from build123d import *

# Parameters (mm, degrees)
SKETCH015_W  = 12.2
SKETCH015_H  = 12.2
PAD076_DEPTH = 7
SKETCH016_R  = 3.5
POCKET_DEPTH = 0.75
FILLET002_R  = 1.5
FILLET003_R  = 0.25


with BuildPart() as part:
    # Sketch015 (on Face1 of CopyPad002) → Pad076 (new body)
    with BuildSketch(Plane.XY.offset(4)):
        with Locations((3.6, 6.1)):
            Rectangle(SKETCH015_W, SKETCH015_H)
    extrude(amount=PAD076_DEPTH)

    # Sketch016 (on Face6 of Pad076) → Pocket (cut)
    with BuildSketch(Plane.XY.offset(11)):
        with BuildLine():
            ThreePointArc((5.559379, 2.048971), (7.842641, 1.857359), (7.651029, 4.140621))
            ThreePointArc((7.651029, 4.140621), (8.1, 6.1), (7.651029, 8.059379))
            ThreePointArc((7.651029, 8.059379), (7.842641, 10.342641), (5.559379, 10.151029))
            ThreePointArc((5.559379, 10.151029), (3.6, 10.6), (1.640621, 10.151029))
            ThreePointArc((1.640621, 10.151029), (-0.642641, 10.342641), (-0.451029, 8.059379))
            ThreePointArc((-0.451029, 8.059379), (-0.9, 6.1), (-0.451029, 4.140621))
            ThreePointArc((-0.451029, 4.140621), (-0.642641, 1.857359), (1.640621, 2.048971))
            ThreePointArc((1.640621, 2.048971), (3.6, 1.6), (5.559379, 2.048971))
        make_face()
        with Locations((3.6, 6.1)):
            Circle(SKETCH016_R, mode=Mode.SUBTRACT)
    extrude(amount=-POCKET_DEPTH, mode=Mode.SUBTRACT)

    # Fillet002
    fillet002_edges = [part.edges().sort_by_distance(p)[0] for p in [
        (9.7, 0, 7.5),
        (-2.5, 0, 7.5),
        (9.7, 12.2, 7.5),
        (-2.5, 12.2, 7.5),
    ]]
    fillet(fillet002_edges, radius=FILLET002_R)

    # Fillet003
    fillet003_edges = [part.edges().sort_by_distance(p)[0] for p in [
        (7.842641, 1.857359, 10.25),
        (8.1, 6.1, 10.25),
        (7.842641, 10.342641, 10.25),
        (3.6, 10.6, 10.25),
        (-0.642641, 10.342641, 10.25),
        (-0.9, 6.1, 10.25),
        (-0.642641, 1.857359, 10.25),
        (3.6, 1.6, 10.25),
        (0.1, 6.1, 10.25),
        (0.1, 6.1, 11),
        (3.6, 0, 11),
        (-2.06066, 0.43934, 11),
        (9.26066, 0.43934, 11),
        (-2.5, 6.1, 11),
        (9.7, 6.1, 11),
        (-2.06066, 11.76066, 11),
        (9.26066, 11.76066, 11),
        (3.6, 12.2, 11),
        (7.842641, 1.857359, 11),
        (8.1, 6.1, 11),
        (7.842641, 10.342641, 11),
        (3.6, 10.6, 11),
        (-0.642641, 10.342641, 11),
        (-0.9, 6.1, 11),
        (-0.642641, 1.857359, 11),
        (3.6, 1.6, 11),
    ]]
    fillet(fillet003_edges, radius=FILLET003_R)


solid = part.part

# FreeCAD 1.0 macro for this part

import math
import FreeCAD as App
import Part
import Sketcher

V = App.Vector


def edges_at(feature, points):
    """Names of the edges that pass closest to the given points."""
    edges = feature.Shape.Edges
    near = lambda p: min(range(len(edges)), key=lambda i: edges[i].distToShape(Part.Vertex(*p))[0])
    return sorted({f"Edge{near(p) + 1}" for p in points})


def add_polygon(sketch, points):
    """Adds a closed chain of lines whose ends are joined by coincident constraints."""
    first, n = sketch.GeometryCount, len(points)
    for a, b in zip(points, points[1:] + points[:1]):
        sketch.addGeometry(Part.LineSegment(App.Vector(*a, 0), App.Vector(*b, 0)), False)
    for i in range(n):
        sketch.addConstraint(Sketcher.Constraint("Coincident", first + i, 2, first + (i + 1) % n, 1))

doc = App.newDocument("Part")
params = doc.addObject("Spreadsheet::Sheet", "Params")
for row, (alias, value) in enumerate([
    ("sketch1_width", "12.2 mm"),
    ("pad1_length", "7 mm"),
    ("sketch2_diameter", "7 mm"),
    ("sketch2_radius", "1.5 mm"),
    ("pocket1_length", "0.75 mm"),
    ("fillet_radius", "1.5 mm"),
    ("fillet2_radius", "0.25 mm"),
], start=1):
    params.set(f"A{row}", alias)
    params.set(f"B{row}", "=" + value)
    params.setAlias(f"B{row}", alias)

body = doc.addObject("PartDesign::Body", "Body")

sketch1 = doc.addObject("Sketcher::SketchObject", "Sketch")
body.addObject(sketch1)
sketch1.AttachmentSupport = (doc.XY_Plane, [""])
sketch1.MapMode = "FlatFace"
sketch1.AttachmentOffset = App.Placement(V(0, 0, 4), App.Rotation())
add_polygon(sketch1, [(-2, 12), (-2, 0), (10, 0), (10, 12)])
sketch1.addConstraint([
    Sketcher.Constraint("Vertical", 0),
    Sketcher.Constraint("Horizontal", 1),
    Sketcher.Constraint("Vertical", 2),
    Sketcher.Constraint("Horizontal", 3),
    Sketcher.Constraint("PointOnObject", 0, 2, -1),
    Sketcher.Constraint("Equal", 3, 0),
    Sketcher.Constraint("DistanceX", 1, 1, 1, 2, 12.2),
    Sketcher.Constraint("DistanceX", 0, 2, -1, 1, 2.5),
])
sketch1.setExpression("Constraints[10]", "Params.sketch1_width")
pad1 = doc.addObject("PartDesign::Pad", "Pad")
body.addObject(pad1)
pad1.Profile = sketch1
pad1.setExpression("Length", "Params.pad1_length")

sketch2 = doc.addObject("Sketcher::SketchObject", "Sketch001")
body.addObject(sketch2)
sketch2.AttachmentSupport = (doc.XY_Plane, [""])
sketch2.MapMode = "FlatFace"
sketch2.AttachmentOffset = App.Placement(V(0, 0, 11), App.Rotation())
sketch2.addGeometry([
    Part.ArcOfCircle(Part.Circle(V(6.8, 2.9, 0), V(0, 0, 1), 1.5), math.radians(-145), math.radians(55)),
    Part.ArcOfCircle(Part.Circle(V(3.6, 6.1, 0), V(0, 0, 1), 4.5), math.radians(-26), math.radians(26)),
    Part.ArcOfCircle(Part.Circle(V(6.8, 9.3, 0), V(0, 0, 1), 1.5), math.radians(-55), math.radians(145)),
    Part.ArcOfCircle(Part.Circle(V(3.6, 6.1, 0), V(0, 0, 1), 4.5), math.radians(64), math.radians(116)),
    Part.ArcOfCircle(Part.Circle(V(0.4, 9.3, 0), V(0, 0, 1), 1.5), math.radians(35), math.radians(235)),
    Part.ArcOfCircle(Part.Circle(V(3.6, 6.1, 0), V(0, 0, 1), 4.5), math.radians(154), math.radians(206)),
    Part.ArcOfCircle(Part.Circle(V(0.4, 2.9, 0), V(0, 0, 1), 1.5), math.radians(125), math.radians(325)),
    Part.ArcOfCircle(Part.Circle(V(3.6, 6.1, 0), V(0, 0, 1), 4.5), math.radians(-116), math.radians(-64)),
    Part.Circle(V(3.6, 6.1, 0), V(0, 0, 1), 3.5),
], False)
sketch2.addConstraint([
    Sketcher.Constraint("Coincident", 0, 2, 1, 1),
    Sketcher.Constraint("Coincident", 1, 2, 2, 1),
    Sketcher.Constraint("Coincident", 2, 2, 3, 1),
    Sketcher.Constraint("Coincident", 3, 2, 4, 1),
    Sketcher.Constraint("Coincident", 4, 2, 5, 1),
    Sketcher.Constraint("Coincident", 5, 2, 6, 1),
    Sketcher.Constraint("Coincident", 6, 2, 7, 1),
    Sketcher.Constraint("Coincident", 7, 2, 0, 1),
    Sketcher.Constraint("Coincident", 3, 3, 1, 3),
    Sketcher.Constraint("Coincident", 5, 3, 1, 3),
    Sketcher.Constraint("Coincident", 7, 3, 1, 3),
    Sketcher.Constraint("Coincident", 8, 3, 1, 3),
    Sketcher.Constraint("Equal", 0, 2),
    Sketcher.Constraint("Equal", 1, 3),
    Sketcher.Constraint("Equal", 2, 4),
    Sketcher.Constraint("Equal", 3, 5),
    Sketcher.Constraint("Equal", 4, 6),
    Sketcher.Constraint("Equal", 5, 7),
    Sketcher.Constraint("Horizontal", 2, 3, 4, 3),
    Sketcher.Constraint("Horizontal", 0, 3, 6, 3),
    Sketcher.Constraint("Horizontal", 2, 2, 3, 2),
    Sketcher.Constraint("Horizontal", 0, 2, 5, 2),
    Sketcher.Constraint("Vertical", 0, 3, 2, 3),
    Sketcher.Constraint("Vertical", 0, 2, 1, 2),
    Sketcher.Constraint("Diameter", 8, 7.0),
    Sketcher.Constraint("Radius", 0, 1.5),
    Sketcher.Constraint("DistanceY", -1, 1, 1, 3, 6.1),
    Sketcher.Constraint("DistanceX", -1, 1, 3, 3, 3.6),
    Sketcher.Constraint("Radius", 1, 4.500002),
    Sketcher.Constraint("DistanceY", 0, 3, 0, 2, 1.222602),
    Sketcher.Constraint("DistanceX", 2, 2, 2, 3, 1.222602),
])
sketch2.setExpression("Constraints[24]", "Params.sketch2_diameter")
sketch2.setExpression("Constraints[25]", "Params.sketch2_radius")
pocket1 = doc.addObject("PartDesign::Pocket", "Pocket")
body.addObject(pocket1)
pocket1.Profile = sketch2
pocket1.setExpression("Length", "Params.pocket1_length")
doc.recompute()

fillet = doc.addObject("PartDesign::Fillet", "Fillet")
body.addObject(fillet)
fillet.Base = (pocket1, edges_at(pocket1, [
    (9.7, 0, 7.5),
    (-2.5, 0, 7.5),
    (9.7, 12.2, 7.5),
    (-2.5, 12.2, 7.5),
]))
fillet.setExpression("Radius", "Params.fillet_radius")
doc.recompute()

fillet2 = doc.addObject("PartDesign::Fillet", "Fillet001")
body.addObject(fillet2)
fillet2.Base = (fillet, edges_at(fillet, [
    (7.843, 1.857, 10.25),
    (8.1, 6.1, 10.25),
    (7.843, 10.343, 10.25),
    (3.6, 10.6, 10.25),
    (-0.643, 10.343, 10.25),
    (-0.9, 6.1, 10.25),
    (-0.643, 1.857, 10.25),
    (3.6, 1.6, 10.25),
    (0.1, 6.1, 10.25),
    (0.1, 6.1, 11),
    (3.6, 0, 11),
    (-2.061, 0.439, 11),
    (9.261, 0.439, 11),
    (-2.5, 6.1, 11),
    (9.7, 6.1, 11),
    (-2.061, 11.761, 11),
    (9.261, 11.761, 11),
    (3.6, 12.2, 11),
    (7.843, 1.857, 11),
    (8.1, 6.1, 11),
    (7.843, 10.343, 11),
    (3.6, 10.6, 11),
    (-0.643, 10.343, 11),
    (-0.9, 6.1, 11),
    (-0.643, 1.857, 11),
    (3.6, 1.6, 11),
]))
fillet2.setExpression("Radius", "Params.fillet2_radius")

doc.recompute()
